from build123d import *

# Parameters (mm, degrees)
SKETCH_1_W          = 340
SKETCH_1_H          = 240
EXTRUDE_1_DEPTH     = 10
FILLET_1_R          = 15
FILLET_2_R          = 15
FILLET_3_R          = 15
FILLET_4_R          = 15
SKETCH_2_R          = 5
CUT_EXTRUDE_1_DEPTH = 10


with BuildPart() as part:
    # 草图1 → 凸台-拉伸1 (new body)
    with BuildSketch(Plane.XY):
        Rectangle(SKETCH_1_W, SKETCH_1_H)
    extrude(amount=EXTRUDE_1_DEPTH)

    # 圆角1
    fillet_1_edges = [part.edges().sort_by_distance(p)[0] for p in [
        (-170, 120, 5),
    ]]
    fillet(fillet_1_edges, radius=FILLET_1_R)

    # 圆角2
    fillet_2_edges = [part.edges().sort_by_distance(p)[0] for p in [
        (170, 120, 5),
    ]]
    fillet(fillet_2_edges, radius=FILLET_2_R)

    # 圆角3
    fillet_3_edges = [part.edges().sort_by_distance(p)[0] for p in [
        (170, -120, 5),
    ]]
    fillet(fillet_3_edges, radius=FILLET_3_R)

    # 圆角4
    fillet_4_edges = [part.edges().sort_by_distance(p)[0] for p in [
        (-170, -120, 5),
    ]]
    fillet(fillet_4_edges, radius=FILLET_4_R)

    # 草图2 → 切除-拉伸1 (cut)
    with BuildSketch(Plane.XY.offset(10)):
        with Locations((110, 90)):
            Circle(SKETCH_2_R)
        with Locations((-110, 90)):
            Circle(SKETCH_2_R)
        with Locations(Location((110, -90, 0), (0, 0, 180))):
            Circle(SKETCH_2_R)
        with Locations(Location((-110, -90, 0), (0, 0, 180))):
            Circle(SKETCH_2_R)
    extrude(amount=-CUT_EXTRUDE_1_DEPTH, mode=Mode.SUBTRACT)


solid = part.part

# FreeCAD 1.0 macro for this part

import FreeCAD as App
import Part
import Sketcher


def edges_at(feature, points):
    """Names of the edges that pass closest to the given points."""
    edges = feature.Shape.Edges
    near = lambda p: min(range(len(edges)), key=lambda i: edges[i].distToShape(Part.Vertex(*p))[0])
    return sorted({f"Edge{near(p) + 1}" for p in points})

doc = App.newDocument("Part")
body = doc.addObject("PartDesign::Body", "Body")

sketch1 = body.newObject("Sketcher::SketchObject", "Sketch")
sketch1.AttachmentSupport = (doc.getObject("XY_Plane"), [""])
sketch1.MapMode = "FlatFace"
sketch1.addGeometry([
    Part.LineSegment(App.Vector(-170, 120, 0), App.Vector(-170, -120, 0)),
    Part.LineSegment(App.Vector(-170, -120, 0), App.Vector(170, -120, 0)),
    Part.LineSegment(App.Vector(170, -120, 0), App.Vector(170, 120, 0)),
    Part.LineSegment(App.Vector(170, 120, 0), App.Vector(-170, 120, 0)),
], False)
sketch1.addConstraint([
    Sketcher.Constraint("Coincident", 0, 2, 1, 1),
    Sketcher.Constraint("Coincident", 1, 2, 2, 1),
    Sketcher.Constraint("Coincident", 2, 2, 3, 1),
    Sketcher.Constraint("Coincident", 3, 2, 0, 1),
    Sketcher.Constraint("Vertical", 0),
    Sketcher.Constraint("Horizontal", 1),
    Sketcher.Constraint("Vertical", 2),
    Sketcher.Constraint("Horizontal", 3),
    Sketcher.Constraint("Symmetric", 0, 2, 2, 2, -1, 1),
    Sketcher.Constraint("DistanceX", 1, 1, 1, 2, 340.0),
    Sketcher.Constraint("DistanceY", 0, 2, 0, 1, 240.0),
])
pad1 = body.newObject("PartDesign::Pad", "Pad")
pad1.Profile = sketch1
pad1.Length = 10
doc.recompute()

fillet = body.newObject("PartDesign::Fillet", "Fillet")
fillet.Base = (pad1, edges_at(pad1, [(-170, 120, 5)]))
fillet.Radius = 15
doc.recompute()

fillet2 = body.newObject("PartDesign::Fillet", "Fillet001")
fillet2.Base = (fillet, edges_at(fillet, [(170, 120, 5)]))
fillet2.Radius = 15
doc.recompute()

fillet3 = body.newObject("PartDesign::Fillet", "Fillet002")
fillet3.Base = (fillet2, edges_at(fillet2, [(170, -120, 5)]))
fillet3.Radius = 15
doc.recompute()

fillet4 = body.newObject("PartDesign::Fillet", "Fillet003")
fillet4.Base = (fillet3, edges_at(fillet3, [(-170, -120, 5)]))
fillet4.Radius = 15

sketch2 = body.newObject("Sketcher::SketchObject", "Sketch001")
sketch2.AttachmentSupport = (doc.getObject("XY_Plane"), [""])
sketch2.MapMode = "FlatFace"
sketch2.AttachmentOffset = App.Placement(App.Vector(0, 0, 10), App.Rotation())
sketch2.addGeometry([
    Part.Circle(App.Vector(110, 90, 0), App.Vector(0, 0, 1), 5),
    Part.Circle(App.Vector(-110, 90, 0), App.Vector(0, 0, 1), 5),
    Part.Circle(App.Vector(110, -90, 0), App.Vector(0, 0, 1), 5),
    Part.Circle(App.Vector(-110, -90, 0), App.Vector(0, 0, 1), 5),
], False)
sketch2.addConstraint([
    Sketcher.Constraint("Equal", 0, 1),
    Sketcher.Constraint("Equal", 1, 2),
    Sketcher.Constraint("Equal", 2, 3),
    Sketcher.Constraint("Symmetric", 1, 3, 2, 3, -1, 1),
    Sketcher.Constraint("Symmetric", 0, 3, 3, 3, -1, 1),
    Sketcher.Constraint("Symmetric", 0, 3, 1, 3, -2),
    Sketcher.Constraint("Diameter", 0, 10.0),
    Sketcher.Constraint("DistanceX", -1, 1, 0, 3, 110.0),
    Sketcher.Constraint("DistanceY", -1, 1, 0, 3, 90.0),
])
pocket1 = body.newObject("PartDesign::Pocket", "Pocket")
pocket1.Profile = sketch2
pocket1.Length = 10

doc.recompute()
